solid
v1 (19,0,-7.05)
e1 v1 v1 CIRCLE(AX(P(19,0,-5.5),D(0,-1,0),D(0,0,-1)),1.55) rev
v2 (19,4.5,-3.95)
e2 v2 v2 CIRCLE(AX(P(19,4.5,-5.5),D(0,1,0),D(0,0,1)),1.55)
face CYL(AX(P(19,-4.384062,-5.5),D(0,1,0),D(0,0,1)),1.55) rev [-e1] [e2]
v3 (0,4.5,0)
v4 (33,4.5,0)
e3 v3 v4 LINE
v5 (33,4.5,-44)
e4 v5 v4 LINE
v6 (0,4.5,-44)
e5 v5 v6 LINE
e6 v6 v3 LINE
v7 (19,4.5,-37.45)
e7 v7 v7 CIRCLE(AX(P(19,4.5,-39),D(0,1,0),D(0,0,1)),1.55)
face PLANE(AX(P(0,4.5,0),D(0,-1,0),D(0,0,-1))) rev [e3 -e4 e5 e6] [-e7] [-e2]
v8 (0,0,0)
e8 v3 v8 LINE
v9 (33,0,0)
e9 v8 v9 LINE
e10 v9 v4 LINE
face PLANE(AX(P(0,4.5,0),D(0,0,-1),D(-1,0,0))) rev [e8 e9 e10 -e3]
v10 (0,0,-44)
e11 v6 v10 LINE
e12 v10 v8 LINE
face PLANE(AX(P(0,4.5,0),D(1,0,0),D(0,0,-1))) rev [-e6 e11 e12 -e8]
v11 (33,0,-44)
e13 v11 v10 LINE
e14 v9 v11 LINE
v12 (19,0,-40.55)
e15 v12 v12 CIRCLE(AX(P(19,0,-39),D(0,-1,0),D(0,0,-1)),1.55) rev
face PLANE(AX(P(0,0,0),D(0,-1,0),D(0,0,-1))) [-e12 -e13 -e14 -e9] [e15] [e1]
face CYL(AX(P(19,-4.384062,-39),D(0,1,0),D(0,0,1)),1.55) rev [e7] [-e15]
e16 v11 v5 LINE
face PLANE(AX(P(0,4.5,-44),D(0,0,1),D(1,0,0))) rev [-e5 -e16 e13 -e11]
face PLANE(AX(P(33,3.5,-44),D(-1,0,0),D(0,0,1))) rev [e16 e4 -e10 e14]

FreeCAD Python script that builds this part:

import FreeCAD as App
import Part
import Sketcher
from FreeCAD import Vector


def add_polygon(sketch, points):
    """Adds a closed chain of lines whose ends are joined by coincident constraints."""
    first, n = sketch.GeometryCount, len(points)
    for a, b in zip(points, points[1:] + points[:1]):
        sketch.addGeometry(Part.LineSegment(App.Vector(*a, 0), App.Vector(*b, 0)), False)
    for i in range(n):
        sketch.addConstraint(Sketcher.Constraint("Coincident", first + i, 2, first + (i + 1) % n, 1))

doc = App.newDocument("Part")
body = doc.addObject("PartDesign::Body", "Body")

# Sketch on XZ plane
sketch1 = body.newObject("Sketcher::SketchObject", "Sketch")
sketch1.AttachmentSupport = (doc.getObject("XZ_Plane"), [""])
sketch1.MapMode = "FlatFace"
add_polygon(sketch1, [(0, -44), (0, 0), (37, 0), (37, -44)])  # lines 0-3
sketch1.addConstraint([
    Sketcher.Constraint("Vertical", 0),
    Sketcher.Constraint("Horizontal", 1),
    Sketcher.Constraint("Vertical", 2),
    Sketcher.Constraint("Horizontal", 3),
    Sketcher.Constraint("Coincident", 0, 2, -1, 1),
    Sketcher.Constraint("DistanceX", 1, 1, 1, 2, 37.0),
    Sketcher.Constraint("DistanceY", 0, 1, 0, 2, 44.0),
])
pad1 = body.newObject("PartDesign::Pad", "Pad")
pad1.Profile = sketch1
pad1.Length = 4.5
pad1.Reversed = True

# Sketch on XZ plane
sketch2 = body.newObject("Sketcher::SketchObject", "Sketch001")
sketch2.AttachmentSupport = (doc.getObject("XZ_Plane"), [""])
sketch2.MapMode = "FlatFace"
sketch2.AttachmentOffset = App.Placement(Vector(0, 0, -4.5), App.Rotation())
sketch2.addGeometry([
    Part.Circle(Vector(19, -39, 0), Vector(0, 0, 1), 1.55),
    Part.Circle(Vector(19, -5.5, 0), Vector(0, 0, 1), 1.55),
], False)
sketch2.addConstraint([
    Sketcher.Constraint("Equal", 0, 1),
    Sketcher.Constraint("Vertical", 0, 3, 1, 3),
    Sketcher.Constraint("Diameter", 0, 3.1),
    Sketcher.Constraint("DistanceX", -1, 1, 0, 3, 19.0),
    Sketcher.Constraint("DistanceY", 0, 3, -1, 1, 39.0),
    Sketcher.Constraint("DistanceY", 1, 3, -1, 1, 5.5),
])
pocket1 = body.newObject("PartDesign::Pocket", "Pocket")
pocket1.Profile = sketch2
pocket1.Length = 4.5
pocket1.Reversed = True

# Sketch on XZ plane
sketch3 = body.newObject("Sketcher::SketchObject", "Sketch002")
sketch3.AttachmentSupport = (doc.getObject("XZ_Plane"), [""])
sketch3.MapMode = "FlatFace"
sketch3.AttachmentOffset = App.Placement(Vector(0, 0, -4.5), App.Rotation())
add_polygon(sketch3, [(33, -44), (33, 0), (34.5, 0), (34.5, -44)])  # lines 0-3
sketch3.addConstraint([
    Sketcher.Constraint("Vertical", 0),
    Sketcher.Constraint("Horizontal", 1),
    Sketcher.Constraint("Vertical", 2),
    Sketcher.Constraint("Horizontal", 3),
    Sketcher.Constraint("PointOnObject", 0, 2, -1),
    Sketcher.Constraint("DistanceY", 0, 1, 0, 2, 44.0),
    Sketcher.Constraint("DistanceX", 1, 1, 1, 2, 1.5),
    Sketcher.Constraint("DistanceX", -1, 1, 0, 2, 33.0),
])
pocket2 = body.newObject("PartDesign::Pocket", "Pocket001")
pocket2.Profile = sketch3
pocket2.Length = 1
pocket2.Reversed = True

# Sketch on XZ plane
sketch4 = body.newObject("Sketcher::SketchObject", "Sketch003")
sketch4.AttachmentSupport = (doc.getObject("XZ_Plane"), [""])
sketch4.MapMode = "FlatFace"
add_polygon(sketch4, [(33, 0), (33, -44), (34.5, -44), (34.5, 0)])  # lines 0-3
sketch4.addConstraint([
    Sketcher.Constraint("Vertical", 0),
    Sketcher.Constraint("Horizontal", 1),
    Sketcher.Constraint("Vertical", 2),
    Sketcher.Constraint("Horizontal", 3),
    Sketcher.Constraint("PointOnObject", 2, 2, -1),
    Sketcher.Constraint("DistanceY", 0, 2, 0, 1, 44.0),
    Sketcher.Constraint("DistanceX", 1, 1, 1, 2, 1.5),
    Sketcher.Constraint("DistanceX", -1, 1, 0, 2, 33.0),
])
pocket3 = body.newObject("PartDesign::Pocket", "Pocket002")
pocket3.Profile = sketch4
pocket3.Length = 1

# Sketch on XZ plane
sketch5 = body.newObject("Sketcher::SketchObject", "Sketch004")
sketch5.AttachmentSupport = (doc.getObject("XZ_Plane"), [""])
sketch5.MapMode = "FlatFace"
sketch5.AttachmentOffset = App.Placement(Vector(0, 0, -4.5), App.Rotation())
add_polygon(sketch5, [(33, -44), (33, 0), (37, 0), (37, -44)])  # lines 0-3
sketch5.addConstraint([
    Sketcher.Constraint("Vertical", 0),
    Sketcher.Constraint("Horizontal", 1),
    Sketcher.Constraint("Vertical", 2),
    Sketcher.Constraint("Horizontal", 3),
    Sketcher.Constraint("PointOnObject", 0, 2, -1),
    Sketcher.Constraint("DistanceX", 1, 1, 1, 2, 4.0),
    Sketcher.Constraint("DistanceY", 0, 1, 0, 2, 44.0),
    Sketcher.Constraint("DistanceX", -1, 1, 0, 2, 33.0),
])
pocket4 = body.newObject("PartDesign::Pocket", "Pocket003")
pocket4.Profile = sketch5
pocket4.Length = 4.5
pocket4.Reversed = True

doc.recompute()
